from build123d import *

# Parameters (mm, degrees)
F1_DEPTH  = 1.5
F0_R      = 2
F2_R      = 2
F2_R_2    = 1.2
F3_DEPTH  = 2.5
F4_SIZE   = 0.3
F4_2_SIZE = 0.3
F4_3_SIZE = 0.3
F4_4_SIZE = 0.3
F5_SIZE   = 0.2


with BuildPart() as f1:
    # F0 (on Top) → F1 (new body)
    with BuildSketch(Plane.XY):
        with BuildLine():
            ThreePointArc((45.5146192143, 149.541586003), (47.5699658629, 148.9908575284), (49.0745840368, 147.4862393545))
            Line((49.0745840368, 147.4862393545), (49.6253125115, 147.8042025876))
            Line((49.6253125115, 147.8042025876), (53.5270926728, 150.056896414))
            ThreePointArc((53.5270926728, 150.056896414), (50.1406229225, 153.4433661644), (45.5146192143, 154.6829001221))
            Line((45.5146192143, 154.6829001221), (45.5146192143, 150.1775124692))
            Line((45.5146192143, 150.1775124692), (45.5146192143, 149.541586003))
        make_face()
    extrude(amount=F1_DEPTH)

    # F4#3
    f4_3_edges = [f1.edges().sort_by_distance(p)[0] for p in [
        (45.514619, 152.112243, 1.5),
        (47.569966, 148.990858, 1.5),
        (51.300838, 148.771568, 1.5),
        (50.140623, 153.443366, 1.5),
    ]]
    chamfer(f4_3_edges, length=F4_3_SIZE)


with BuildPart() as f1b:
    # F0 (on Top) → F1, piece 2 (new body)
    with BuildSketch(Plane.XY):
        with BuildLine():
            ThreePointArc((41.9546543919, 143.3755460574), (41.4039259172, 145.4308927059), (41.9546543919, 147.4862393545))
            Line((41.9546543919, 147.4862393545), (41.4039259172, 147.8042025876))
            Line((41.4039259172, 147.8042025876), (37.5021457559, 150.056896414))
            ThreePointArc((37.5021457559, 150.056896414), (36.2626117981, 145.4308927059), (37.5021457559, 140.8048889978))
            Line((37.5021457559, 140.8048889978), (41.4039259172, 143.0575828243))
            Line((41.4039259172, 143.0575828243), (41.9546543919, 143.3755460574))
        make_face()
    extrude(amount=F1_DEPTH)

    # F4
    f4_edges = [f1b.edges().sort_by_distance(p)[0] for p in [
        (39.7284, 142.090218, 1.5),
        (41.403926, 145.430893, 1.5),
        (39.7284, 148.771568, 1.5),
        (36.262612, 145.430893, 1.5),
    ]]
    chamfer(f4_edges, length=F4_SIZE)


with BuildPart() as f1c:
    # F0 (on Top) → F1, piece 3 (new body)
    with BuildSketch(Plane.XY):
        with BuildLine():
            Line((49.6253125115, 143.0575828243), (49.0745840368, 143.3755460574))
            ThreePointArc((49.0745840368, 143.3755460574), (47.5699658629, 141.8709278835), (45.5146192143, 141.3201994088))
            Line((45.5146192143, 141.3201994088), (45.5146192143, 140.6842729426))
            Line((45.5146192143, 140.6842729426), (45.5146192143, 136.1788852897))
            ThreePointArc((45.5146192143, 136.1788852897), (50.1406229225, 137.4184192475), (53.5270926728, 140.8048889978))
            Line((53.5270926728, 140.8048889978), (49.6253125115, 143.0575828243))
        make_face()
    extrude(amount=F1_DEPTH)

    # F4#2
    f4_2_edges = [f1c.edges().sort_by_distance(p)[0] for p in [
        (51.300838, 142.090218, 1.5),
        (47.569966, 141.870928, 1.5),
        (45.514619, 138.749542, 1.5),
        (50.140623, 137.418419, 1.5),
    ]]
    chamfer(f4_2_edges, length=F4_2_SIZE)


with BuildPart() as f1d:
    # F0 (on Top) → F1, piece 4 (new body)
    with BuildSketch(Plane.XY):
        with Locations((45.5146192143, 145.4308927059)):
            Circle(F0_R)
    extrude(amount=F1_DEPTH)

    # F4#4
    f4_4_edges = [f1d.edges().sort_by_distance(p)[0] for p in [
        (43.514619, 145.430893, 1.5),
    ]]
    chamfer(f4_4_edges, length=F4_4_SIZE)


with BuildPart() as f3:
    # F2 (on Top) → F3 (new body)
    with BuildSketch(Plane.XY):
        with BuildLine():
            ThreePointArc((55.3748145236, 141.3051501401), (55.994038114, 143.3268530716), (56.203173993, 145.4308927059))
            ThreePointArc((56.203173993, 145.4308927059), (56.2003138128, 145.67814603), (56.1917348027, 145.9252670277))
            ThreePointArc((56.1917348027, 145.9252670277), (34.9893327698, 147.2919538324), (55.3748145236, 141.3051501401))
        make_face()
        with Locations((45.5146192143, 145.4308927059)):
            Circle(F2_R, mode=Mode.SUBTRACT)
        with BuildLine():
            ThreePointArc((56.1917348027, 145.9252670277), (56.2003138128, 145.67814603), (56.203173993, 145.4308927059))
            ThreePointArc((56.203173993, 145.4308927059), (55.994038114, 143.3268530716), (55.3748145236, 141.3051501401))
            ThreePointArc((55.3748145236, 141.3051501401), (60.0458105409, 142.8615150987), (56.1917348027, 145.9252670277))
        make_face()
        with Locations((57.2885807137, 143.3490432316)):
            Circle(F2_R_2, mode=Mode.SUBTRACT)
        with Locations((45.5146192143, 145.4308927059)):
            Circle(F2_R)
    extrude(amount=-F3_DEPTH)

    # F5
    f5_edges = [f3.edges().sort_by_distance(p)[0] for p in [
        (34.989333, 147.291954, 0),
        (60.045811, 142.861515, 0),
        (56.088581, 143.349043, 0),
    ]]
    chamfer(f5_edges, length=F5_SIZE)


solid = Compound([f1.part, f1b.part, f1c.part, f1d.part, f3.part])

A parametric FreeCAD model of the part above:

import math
import FreeCAD as App
import Part
import Sketcher

V = App.Vector
Q = App.Units.Quantity


def edges_at(feature, points):
    """Names of the edges that pass closest to the given points."""
    edges = feature.Shape.Edges
    near = lambda p: min(range(len(edges)), key=lambda i: edges[i].distToShape(Part.Vertex(*p))[0])
    return sorted({f"Edge{near(p) + 1}" for p in points})

doc = App.newDocument("Part")
body = doc.addObject("PartDesign::Body", "Body")

# Sketch on XY plane
sketch1 = doc.addObject("Sketcher::SketchObject", "Sketch")
body.addObject(sketch1)
sketch1.AttachmentSupport = (doc.XY_Plane, [""])
sketch1.MapMode = "FlatFace"
sketch1.addGeometry([
    Part.ArcOfCircle(Part.Circle(V(45.5, 145.4, 0), V(0, 0, 1), 4.1), math.radians(30), math.radians(90)),  # 0
    Part.LineSegment(V(49.1, 147.5, 0), V(49.6, 147.8, 0)),  # 1
    Part.LineSegment(V(49.6, 147.8, 0), V(53.5, 150.1, 0)),  # 2
    Part.ArcOfCircle(Part.Circle(V(45.5, 145.4, 0), V(0, 0, 1), 9.3), math.radians(30), math.radians(90)),  # 3
    Part.LineSegment(V(45.5, 154.7, 0), V(45.5, 149.5, 0)),  # 4
], False)
sketch1.addConstraint([
    Sketcher.Constraint("Coincident", 0, 1, 1, 1),
    Sketcher.Constraint("Coincident", 1, 2, 2, 1),
    Sketcher.Constraint("Coincident", 2, 2, 3, 1),
    Sketcher.Constraint("Coincident", 3, 2, 4, 1),
    Sketcher.Constraint("Coincident", 4, 2, 0, 2),
    Sketcher.Constraint("Vertical", 4),
    Sketcher.Constraint("Coincident", 3, 3, 0, 3),
    Sketcher.Constraint("Parallel", 1, 2),
    Sketcher.Constraint("Vertical", 0, 3, 3, 2),
    Sketcher.Constraint("Angle", 1, Q("30 deg")),
    Sketcher.Constraint("Radius", 0, 4.110693),
    Sketcher.Constraint("Radius", 3, 9.252007),
    Sketcher.Constraint("DistanceY", -1, 1, 3, 2, 154.6829),
    Sketcher.Constraint("DistanceX", -1, 1, 0, 3, 45.514619),
    Sketcher.Constraint("DistanceY", -1, 1, 0, 1, 147.486239),
    Sketcher.Constraint("DistanceX", 0, 1, 1, 2, 0.550728),
])
pad1 = doc.addObject("PartDesign::Pad", "Pad")
body.addObject(pad1)
pad1.Profile = sketch1
pad1.Length = 1.5
doc.recompute()

chamfer = doc.addObject("PartDesign::Chamfer", "Chamfer")
body.addObject(chamfer)
chamfer.Base = (pad1, edges_at(pad1, [
    (45.515, 152.112, 1.5),
    (47.57, 148.991, 1.5),
    (51.576, 148.931, 1.5),
    (50.141, 153.443, 1.5),
]))
chamfer.Size = 0.3
body2 = doc.addObject("PartDesign::Body", "Body001")

# Sketch on XY plane
sketch2 = doc.addObject("Sketcher::SketchObject", "Sketch001")
body2.addObject(sketch2)
sketch2.AttachmentSupport = (doc.getObject("XY_Plane001"), [""])
sketch2.MapMode = "FlatFace"
sketch2.addGeometry([
    Part.ArcOfCircle(Part.Circle(V(45.5, 145.4, 0), V(0, 0, 1), 4.1), math.radians(150), math.radians(210)),  # 0
    Part.LineSegment(V(42, 147.5, 0), V(41.4, 147.8, 0)),  # 1
    Part.LineSegment(V(41.4, 147.8, 0), V(37.5, 150.1, 0)),  # 2
    Part.ArcOfCircle(Part.Circle(V(45.5, 145.4, 0), V(0, 0, 1), 9.3), math.radians(150), math.radians(210)),  # 3
    Part.LineSegment(V(37.5, 140.8, 0), V(41.4, 143.1, 0)),  # 4
    Part.LineSegment(V(41.4, 143.1, 0), V(42, 143.4, 0)),  # 5
], False)
sketch2.addConstraint([
    Sketcher.Constraint("Coincident", 0, 1, 1, 1),
    Sketcher.Constraint("Coincident", 1, 2, 2, 1),
    Sketcher.Constraint("Coincident", 2, 2, 3, 1),
    Sketcher.Constraint("Coincident", 3, 2, 4, 1),
    Sketcher.Constraint("Coincident", 4, 2, 5, 1),
    Sketcher.Constraint("Coincident", 5, 2, 0, 2),
    Sketcher.Constraint("Coincident", 3, 3, 0, 3),
    Sketcher.Constraint("Parallel", 1, 2),
    Sketcher.Constraint("Parallel", 4, 5),
    Sketcher.Constraint("Vertical", 2, 2, 3, 2),
    Sketcher.Constraint("Vertical", 1, 2, 4, 2),
    Sketcher.Constraint("Vertical", 0, 1, 5, 2),
    Sketcher.Constraint("Angle", 1, Q("150 deg")),
    Sketcher.Constraint("Radius", 0, 4.110693),
    Sketcher.Constraint("Radius", 3, 9.252007),
    Sketcher.Constraint("DistanceX", -1, 1, 0, 3, 45.514619),
    Sketcher.Constraint("DistanceY", -1, 1, 0, 1, 147.486239),
    Sketcher.Constraint("DistanceY", -1, 1, 3, 2, 140.804889),
    Sketcher.Constraint("DistanceX", 1, 2, 0, 1, 0.550728),
])
pad2 = doc.addObject("PartDesign::Pad", "Pad001")
body2.addObject(pad2)
pad2.Profile = sketch2
pad2.Length = 1.5
doc.recompute()

chamfer2 = doc.addObject("PartDesign::Chamfer", "Chamfer001")
body2.addObject(chamfer2)
chamfer2.Base = (pad2, edges_at(pad2, [
    (39.453, 141.931, 1.5),
    (41.404, 145.431, 1.5),
    (39.453, 148.931, 1.5),
    (36.263, 145.431, 1.5),
]))
chamfer2.Size = 0.3
body3 = doc.addObject("PartDesign::Body", "Body002")

# Sketch on XY plane
sketch3 = doc.addObject("Sketcher::SketchObject", "Sketch002")
body3.addObject(sketch3)
sketch3.AttachmentSupport = (doc.getObject("XY_Plane002"), [""])
sketch3.MapMode = "FlatFace"
sketch3.addGeometry([
    Part.LineSegment(V(49.6, 143.1, 0), V(49.1, 143.4, 0)),  # 0
    Part.ArcOfCircle(Part.Circle(V(45.5, 145.4, 0), V(0, 0, 1), 4.1), math.radians(-90), math.radians(-30)),  # 1
    Part.LineSegment(V(45.5, 141.3, 0), V(45.5, 136.2, 0)),  # 2
    Part.ArcOfCircle(Part.Circle(V(45.5, 145.4, 0), V(0, 0, 1), 9.3), math.radians(-90), math.radians(-30)),  # 3
    Part.LineSegment(V(53.5, 140.8, 0), V(49.6, 143.1, 0)),  # 4
], False)
sketch3.addConstraint([
    Sketcher.Constraint("Coincident", 0, 2, 1, 2),
    Sketcher.Constraint("Coincident", 1, 1, 2, 1),
    Sketcher.Constraint("Coincident", 2, 2, 3, 1),
    Sketcher.Constraint("Coincident", 3, 2, 4, 1),
    Sketcher.Constraint("Coincident", 4, 2, 0, 1),
    Sketcher.Constraint("Vertical", 2),
    Sketcher.Constraint("Coincident", 3, 3, 1, 3),
    Sketcher.Constraint("Parallel", 0, 4),
    Sketcher.Constraint("Vertical", 3, 3, 1, 1),
    Sketcher.Constraint("Angle", 0, Q("150 deg")),
    Sketcher.Constraint("Radius", 1, 4.110693),
    Sketcher.Constraint("Radius", 3, 9.252007),
    Sketcher.Constraint("DistanceY", -1, 1, 1, 1, 141.320199),
    Sketcher.Constraint("DistanceX", -1, 1, 1, 3, 45.514619),
    Sketcher.Constraint("DistanceY", -1, 1, 3, 2, 140.804889),
    Sketcher.Constraint("DistanceX", 0, 2, 4, 2, 0.550728),
])
pad3 = doc.addObject("PartDesign::Pad", "Pad002")
body3.addObject(pad3)
pad3.Profile = sketch3
pad3.Length = 1.5
doc.recompute()

chamfer3 = doc.addObject("PartDesign::Chamfer", "Chamfer002")
body3.addObject(chamfer3)
chamfer3.Base = (pad3, edges_at(pad3, [
    (51.576, 141.931, 1.5),
    (47.57, 141.871, 1.5),
    (45.515, 138.75, 1.5),
    (50.141, 137.418, 1.5),
]))
chamfer3.Size = 0.3
body4 = doc.addObject("PartDesign::Body", "Body003")

# Sketch on XY plane
sketch4 = doc.addObject("Sketcher::SketchObject", "Sketch003")
body4.addObject(sketch4)
sketch4.AttachmentSupport = (doc.getObject("XY_Plane003"), [""])
sketch4.MapMode = "FlatFace"
sketch4.addGeometry(Part.Circle(V(45.5, 145.4, 0), V(0, 0, 1), 2), False)
sketch4.addConstraint([
    Sketcher.Constraint("Diameter", 0, 4.0),
    Sketcher.Constraint("DistanceX", -1, 1, 0, 3, 45.514619),
    Sketcher.Constraint("DistanceY", -1, 1, 0, 3, 145.430893),
])
pad4 = doc.addObject("PartDesign::Pad", "Pad003")
body4.addObject(pad4)
pad4.Profile = sketch4
pad4.Length = 1.5
doc.recompute()

chamfer4 = doc.addObject("PartDesign::Chamfer", "Chamfer003")
body4.addObject(chamfer4)
chamfer4.Base = (pad4, edges_at(pad4, [(43.515, 145.431, 1.5)]))
chamfer4.Size = 0.3
body5 = doc.addObject("PartDesign::Body", "Body004")

# Sketch on XY plane
sketch5 = doc.addObject("Sketcher::SketchObject", "Sketch004")
body5.addObject(sketch5)
sketch5.AttachmentSupport = (doc.getObject("XY_Plane004"), [""])
sketch5.MapMode = "FlatFace"
sketch5.addGeometry([
    Part.ArcOfCircle(Part.Circle(V(45.5, 145.4, 0), V(0, 0, 1), 10.7), math.radians(3), math.radians(337)),
    Part.ArcOfCircle(Part.Circle(V(57.3, 143.3, 0), V(0, 0, 1), 2.8), math.radians(-133), math.radians(113)),
    Part.Circle(V(57.3, 143.3, 0), V(0, 0, 1), 1.2),
], False)
sketch5.addConstraint([
    Sketcher.Constraint("Coincident", 0, 1, 1, 2),
    Sketcher.Constraint("Coincident", 1, 1, 0, 2),
    Sketcher.Constraint("Coincident", 2, 3, 1, 3),
    Sketcher.Constraint("Diameter", 2, 2.4),
    Sketcher.Constraint("Radius", 1, 2.8),
    Sketcher.Constraint("Radius", 0, 10.688555),
    Sketcher.Constraint("DistanceX", -1, 1, 0, 3, 45.514619),
    Sketcher.Constraint("DistanceX", -1, 1, 1, 3, 57.288581),
    Sketcher.Constraint("DistanceY", -1, 1, 1, 1, 141.30515),
    Sketcher.Constraint("DistanceY", 1, 3, 0, 3, 2.081849),
])
pad5 = doc.addObject("PartDesign::Pad", "Pad004")
body5.addObject(pad5)
pad5.Profile = sketch5
pad5.Length = 2.5
pad5.Reversed = True
doc.recompute()

chamfer5 = doc.addObject("PartDesign::Chamfer", "Chamfer004")
body5.addObject(chamfer5)
chamfer5.Base = (pad5, edges_at(pad5, [(34.989, 147.292, 0), (60.046, 142.862, 0), (56.089, 143.349, 0)]))
chamfer5.Size = 0.2

doc.recompute()
